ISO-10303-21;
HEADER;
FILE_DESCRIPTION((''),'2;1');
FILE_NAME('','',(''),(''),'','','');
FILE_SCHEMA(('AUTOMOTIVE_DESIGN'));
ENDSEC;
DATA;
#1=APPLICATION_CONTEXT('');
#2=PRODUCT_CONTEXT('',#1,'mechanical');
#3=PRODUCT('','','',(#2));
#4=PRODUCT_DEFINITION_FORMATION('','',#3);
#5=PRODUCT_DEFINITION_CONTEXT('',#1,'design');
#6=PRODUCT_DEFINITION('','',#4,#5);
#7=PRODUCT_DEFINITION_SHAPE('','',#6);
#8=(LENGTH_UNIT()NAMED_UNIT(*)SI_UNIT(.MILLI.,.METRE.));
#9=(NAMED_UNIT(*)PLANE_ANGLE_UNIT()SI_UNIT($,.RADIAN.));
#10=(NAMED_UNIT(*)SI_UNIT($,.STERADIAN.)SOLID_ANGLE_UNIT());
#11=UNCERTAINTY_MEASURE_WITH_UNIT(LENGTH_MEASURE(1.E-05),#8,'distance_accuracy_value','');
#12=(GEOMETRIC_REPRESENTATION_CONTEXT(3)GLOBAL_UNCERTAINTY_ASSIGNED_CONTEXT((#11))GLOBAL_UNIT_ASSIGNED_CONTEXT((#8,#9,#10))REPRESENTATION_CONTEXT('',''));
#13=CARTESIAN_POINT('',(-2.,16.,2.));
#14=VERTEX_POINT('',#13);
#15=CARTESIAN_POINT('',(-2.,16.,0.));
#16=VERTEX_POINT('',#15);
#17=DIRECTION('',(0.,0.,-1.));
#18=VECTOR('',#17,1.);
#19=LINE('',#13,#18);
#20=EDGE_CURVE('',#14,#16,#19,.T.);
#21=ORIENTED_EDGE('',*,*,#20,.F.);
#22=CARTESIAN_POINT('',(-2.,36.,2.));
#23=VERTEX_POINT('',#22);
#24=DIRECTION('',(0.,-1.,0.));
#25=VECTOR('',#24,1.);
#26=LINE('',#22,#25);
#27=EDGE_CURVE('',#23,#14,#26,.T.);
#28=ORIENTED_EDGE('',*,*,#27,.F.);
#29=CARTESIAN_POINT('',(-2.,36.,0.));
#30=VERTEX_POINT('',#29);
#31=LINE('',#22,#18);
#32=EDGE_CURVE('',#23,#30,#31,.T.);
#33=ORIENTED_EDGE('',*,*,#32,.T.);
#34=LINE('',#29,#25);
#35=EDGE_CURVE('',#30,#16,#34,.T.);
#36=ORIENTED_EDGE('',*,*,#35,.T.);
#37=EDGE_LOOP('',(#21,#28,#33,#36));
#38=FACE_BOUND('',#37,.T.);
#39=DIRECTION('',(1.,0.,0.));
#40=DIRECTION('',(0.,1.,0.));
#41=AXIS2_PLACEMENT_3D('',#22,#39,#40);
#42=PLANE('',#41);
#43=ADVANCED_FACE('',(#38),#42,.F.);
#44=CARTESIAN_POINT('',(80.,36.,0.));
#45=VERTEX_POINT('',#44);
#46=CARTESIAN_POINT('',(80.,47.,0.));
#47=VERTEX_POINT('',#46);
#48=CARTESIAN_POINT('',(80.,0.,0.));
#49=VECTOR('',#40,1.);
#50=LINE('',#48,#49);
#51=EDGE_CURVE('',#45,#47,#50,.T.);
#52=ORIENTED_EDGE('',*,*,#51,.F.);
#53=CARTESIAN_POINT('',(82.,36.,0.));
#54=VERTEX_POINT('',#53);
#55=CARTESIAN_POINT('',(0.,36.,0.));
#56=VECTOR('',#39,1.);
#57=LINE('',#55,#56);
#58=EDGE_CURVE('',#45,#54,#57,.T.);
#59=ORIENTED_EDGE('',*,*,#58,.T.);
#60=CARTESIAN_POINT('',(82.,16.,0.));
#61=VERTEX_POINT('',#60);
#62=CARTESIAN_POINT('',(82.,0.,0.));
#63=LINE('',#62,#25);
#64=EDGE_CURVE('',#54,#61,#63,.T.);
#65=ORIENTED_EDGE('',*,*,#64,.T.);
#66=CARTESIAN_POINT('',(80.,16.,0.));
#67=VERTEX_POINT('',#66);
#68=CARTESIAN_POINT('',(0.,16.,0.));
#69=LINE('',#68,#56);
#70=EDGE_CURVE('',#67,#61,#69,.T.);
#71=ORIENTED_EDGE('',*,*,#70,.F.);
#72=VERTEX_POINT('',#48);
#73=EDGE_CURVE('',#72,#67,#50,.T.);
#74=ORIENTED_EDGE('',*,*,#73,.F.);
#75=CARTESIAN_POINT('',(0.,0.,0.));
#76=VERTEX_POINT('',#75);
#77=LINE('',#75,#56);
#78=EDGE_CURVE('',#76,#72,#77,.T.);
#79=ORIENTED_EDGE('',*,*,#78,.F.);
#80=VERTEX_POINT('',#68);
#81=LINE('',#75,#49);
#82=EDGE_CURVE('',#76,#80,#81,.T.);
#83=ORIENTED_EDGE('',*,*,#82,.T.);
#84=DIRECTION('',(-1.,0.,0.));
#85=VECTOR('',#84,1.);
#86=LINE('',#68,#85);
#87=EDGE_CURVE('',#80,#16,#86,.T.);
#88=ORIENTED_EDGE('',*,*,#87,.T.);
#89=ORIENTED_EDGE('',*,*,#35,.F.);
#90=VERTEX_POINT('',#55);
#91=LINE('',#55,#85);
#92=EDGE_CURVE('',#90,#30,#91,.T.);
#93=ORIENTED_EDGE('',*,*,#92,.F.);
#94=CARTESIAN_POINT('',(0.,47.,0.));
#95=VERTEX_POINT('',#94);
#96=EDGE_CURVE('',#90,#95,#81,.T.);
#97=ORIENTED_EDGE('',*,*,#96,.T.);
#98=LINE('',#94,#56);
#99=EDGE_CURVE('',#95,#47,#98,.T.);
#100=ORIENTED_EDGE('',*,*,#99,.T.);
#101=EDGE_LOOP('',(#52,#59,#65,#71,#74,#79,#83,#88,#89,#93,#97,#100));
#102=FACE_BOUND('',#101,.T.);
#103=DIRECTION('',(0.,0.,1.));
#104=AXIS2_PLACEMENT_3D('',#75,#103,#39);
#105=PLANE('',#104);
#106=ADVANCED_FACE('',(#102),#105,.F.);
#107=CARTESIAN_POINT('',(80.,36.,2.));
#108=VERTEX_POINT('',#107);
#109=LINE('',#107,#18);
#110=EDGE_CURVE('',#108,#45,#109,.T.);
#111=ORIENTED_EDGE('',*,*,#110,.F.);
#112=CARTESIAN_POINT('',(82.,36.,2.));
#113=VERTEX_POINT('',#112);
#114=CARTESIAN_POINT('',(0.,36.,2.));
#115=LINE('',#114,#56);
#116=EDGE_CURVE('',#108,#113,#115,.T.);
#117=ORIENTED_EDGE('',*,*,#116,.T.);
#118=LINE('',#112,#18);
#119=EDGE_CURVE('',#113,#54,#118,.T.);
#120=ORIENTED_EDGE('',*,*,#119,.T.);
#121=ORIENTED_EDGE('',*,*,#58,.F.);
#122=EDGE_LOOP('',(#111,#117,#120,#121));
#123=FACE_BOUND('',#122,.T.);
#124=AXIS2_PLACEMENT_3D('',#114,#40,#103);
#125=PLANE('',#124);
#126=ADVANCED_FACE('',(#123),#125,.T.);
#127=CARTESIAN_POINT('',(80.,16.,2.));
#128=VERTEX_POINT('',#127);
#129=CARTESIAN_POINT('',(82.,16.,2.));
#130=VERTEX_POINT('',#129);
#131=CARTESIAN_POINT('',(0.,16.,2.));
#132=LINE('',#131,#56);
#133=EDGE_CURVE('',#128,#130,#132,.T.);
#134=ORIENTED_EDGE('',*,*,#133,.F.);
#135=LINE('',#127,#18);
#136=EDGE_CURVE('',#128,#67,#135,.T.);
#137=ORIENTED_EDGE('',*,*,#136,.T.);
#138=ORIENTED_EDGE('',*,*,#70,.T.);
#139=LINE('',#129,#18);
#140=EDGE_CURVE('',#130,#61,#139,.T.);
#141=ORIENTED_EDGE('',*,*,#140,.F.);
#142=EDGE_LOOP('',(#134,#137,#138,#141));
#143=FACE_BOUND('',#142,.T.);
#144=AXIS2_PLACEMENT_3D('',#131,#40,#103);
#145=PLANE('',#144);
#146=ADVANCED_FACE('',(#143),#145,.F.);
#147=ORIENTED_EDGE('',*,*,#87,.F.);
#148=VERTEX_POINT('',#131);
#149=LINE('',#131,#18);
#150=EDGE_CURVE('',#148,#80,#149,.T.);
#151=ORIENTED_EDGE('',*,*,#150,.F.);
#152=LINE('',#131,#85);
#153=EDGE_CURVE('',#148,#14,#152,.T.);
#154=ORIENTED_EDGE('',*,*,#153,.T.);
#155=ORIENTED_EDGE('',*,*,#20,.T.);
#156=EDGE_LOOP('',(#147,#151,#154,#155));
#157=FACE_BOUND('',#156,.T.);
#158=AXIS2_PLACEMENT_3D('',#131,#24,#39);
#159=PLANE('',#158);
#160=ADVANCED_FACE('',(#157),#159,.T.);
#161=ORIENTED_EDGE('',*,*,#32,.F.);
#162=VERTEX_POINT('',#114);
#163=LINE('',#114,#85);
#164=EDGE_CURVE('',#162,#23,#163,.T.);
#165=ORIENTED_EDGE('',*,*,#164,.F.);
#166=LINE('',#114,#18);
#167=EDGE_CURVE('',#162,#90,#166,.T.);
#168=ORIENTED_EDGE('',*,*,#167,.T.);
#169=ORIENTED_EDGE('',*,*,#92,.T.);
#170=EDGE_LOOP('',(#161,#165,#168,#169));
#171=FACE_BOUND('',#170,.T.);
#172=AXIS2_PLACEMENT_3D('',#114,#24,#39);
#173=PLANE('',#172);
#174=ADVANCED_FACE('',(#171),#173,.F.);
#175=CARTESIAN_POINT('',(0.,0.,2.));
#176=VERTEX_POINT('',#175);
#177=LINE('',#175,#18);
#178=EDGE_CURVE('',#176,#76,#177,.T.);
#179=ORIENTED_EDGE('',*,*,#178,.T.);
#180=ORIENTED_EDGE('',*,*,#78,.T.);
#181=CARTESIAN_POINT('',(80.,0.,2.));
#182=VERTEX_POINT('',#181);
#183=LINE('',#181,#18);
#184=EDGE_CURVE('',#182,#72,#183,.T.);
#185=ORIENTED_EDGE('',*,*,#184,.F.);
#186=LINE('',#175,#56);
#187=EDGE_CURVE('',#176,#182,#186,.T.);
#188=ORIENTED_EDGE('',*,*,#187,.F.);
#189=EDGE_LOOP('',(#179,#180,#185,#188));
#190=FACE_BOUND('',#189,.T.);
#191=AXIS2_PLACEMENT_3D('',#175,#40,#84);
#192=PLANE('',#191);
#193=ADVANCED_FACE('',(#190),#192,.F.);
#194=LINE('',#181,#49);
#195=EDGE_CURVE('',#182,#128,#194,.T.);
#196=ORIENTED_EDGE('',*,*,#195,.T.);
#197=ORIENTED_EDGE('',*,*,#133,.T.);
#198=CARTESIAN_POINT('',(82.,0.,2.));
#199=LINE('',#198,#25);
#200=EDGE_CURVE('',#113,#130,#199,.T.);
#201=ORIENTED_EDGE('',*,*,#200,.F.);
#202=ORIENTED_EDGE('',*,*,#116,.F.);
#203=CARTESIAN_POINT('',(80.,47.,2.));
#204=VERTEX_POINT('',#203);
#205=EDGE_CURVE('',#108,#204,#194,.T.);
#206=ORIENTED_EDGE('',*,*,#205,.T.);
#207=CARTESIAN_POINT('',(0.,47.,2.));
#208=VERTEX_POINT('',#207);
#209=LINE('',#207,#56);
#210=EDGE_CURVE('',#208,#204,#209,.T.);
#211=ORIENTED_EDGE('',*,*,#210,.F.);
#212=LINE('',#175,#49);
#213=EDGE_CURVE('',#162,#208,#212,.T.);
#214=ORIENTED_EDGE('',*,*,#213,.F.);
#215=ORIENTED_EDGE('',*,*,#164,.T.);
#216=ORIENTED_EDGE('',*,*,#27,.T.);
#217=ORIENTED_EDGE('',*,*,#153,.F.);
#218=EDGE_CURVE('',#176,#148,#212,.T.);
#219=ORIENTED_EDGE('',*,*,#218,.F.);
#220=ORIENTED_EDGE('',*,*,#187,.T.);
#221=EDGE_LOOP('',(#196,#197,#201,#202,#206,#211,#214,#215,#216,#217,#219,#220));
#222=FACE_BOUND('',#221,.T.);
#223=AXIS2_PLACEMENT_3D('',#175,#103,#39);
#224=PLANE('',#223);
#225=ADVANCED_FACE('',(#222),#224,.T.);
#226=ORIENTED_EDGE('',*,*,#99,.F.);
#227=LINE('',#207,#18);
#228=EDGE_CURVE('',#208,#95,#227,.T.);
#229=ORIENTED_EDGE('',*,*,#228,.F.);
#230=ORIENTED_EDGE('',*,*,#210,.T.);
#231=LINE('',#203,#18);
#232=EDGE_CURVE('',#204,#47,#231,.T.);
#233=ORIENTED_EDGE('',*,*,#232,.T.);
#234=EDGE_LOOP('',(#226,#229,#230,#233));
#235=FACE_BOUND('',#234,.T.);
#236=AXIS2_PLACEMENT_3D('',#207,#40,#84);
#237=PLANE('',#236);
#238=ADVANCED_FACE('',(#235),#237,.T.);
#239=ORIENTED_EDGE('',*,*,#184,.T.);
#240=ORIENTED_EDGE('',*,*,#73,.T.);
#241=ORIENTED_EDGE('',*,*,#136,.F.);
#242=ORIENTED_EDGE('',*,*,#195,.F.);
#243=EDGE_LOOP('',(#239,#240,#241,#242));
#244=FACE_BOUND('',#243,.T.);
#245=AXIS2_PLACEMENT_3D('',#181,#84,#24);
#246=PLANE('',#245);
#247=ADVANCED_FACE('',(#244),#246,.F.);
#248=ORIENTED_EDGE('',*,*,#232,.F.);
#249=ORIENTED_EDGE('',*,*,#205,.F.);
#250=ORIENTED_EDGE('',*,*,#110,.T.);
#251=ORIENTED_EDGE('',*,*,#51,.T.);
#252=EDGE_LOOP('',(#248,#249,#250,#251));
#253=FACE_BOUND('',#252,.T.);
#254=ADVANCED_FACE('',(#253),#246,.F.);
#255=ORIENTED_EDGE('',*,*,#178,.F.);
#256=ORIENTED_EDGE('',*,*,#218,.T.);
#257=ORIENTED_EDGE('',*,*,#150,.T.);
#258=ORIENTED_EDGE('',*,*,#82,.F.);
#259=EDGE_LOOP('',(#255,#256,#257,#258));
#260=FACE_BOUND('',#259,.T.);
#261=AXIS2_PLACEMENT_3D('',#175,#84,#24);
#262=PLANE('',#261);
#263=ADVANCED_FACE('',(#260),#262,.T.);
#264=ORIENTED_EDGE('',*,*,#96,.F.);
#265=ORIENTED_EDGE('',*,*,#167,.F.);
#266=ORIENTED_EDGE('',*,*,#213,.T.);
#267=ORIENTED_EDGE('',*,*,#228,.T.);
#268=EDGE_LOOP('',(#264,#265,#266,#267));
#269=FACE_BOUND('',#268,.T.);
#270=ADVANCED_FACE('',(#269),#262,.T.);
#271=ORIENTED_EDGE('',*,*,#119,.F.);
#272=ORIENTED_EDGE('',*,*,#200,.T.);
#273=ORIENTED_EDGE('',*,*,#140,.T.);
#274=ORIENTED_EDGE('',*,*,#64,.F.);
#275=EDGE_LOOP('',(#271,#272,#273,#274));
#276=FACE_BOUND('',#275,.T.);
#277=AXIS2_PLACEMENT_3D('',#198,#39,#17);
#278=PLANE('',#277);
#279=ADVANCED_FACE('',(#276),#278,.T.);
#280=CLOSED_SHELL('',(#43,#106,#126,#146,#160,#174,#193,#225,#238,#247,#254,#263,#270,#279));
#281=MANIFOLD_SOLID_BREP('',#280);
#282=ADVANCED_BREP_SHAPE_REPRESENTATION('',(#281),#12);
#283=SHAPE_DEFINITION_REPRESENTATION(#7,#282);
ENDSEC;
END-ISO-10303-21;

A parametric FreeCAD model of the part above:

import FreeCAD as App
import Part
import Sketcher
Q = App.Units.Quantity


def add_polygon(sketch, points):
    """Adds a closed chain of lines whose ends are joined by coincident constraints."""
    first, n = sketch.GeometryCount, len(points)
    for a, b in zip(points, points[1:] + points[:1]):
        sketch.addGeometry(Part.LineSegment(App.Vector(*a, 0), App.Vector(*b, 0)), False)
    for i in range(n):
        sketch.addConstraint(Sketcher.Constraint("Coincident", first + i, 2, first + (i + 1) % n, 1))

doc = App.newDocument("Part")
body = doc.addObject("PartDesign::Body", "Body")

# Sketch on XY plane
sketch1 = body.newObject("Sketcher::SketchObject", "Sketch")
sketch1.AttachmentSupport = (doc.getObject("XY_Plane"), [""])
sketch1.MapMode = "FlatFace"
add_polygon(sketch1, [(80, 16), (82, 16), (82, 36), (80, 36), (80, 47), (0, 47), (0, 36), (-2, 36), (-2, 16), (0, 16), (0, 0), (80, 0)])  # lines 0-11
sketch1.addConstraint([
    Sketcher.Constraint("Horizontal", 0),
    Sketcher.Constraint("Vertical", 1),
    Sketcher.Constraint("Horizontal", 2),
    Sketcher.Constraint("Vertical", 3),
    Sketcher.Constraint("Horizontal", 4),
    Sketcher.Constraint("Vertical", 5),
    Sketcher.Constraint("Horizontal", 6),
    Sketcher.Constraint("Vertical", 7),
    Sketcher.Constraint("Horizontal", 8),
    Sketcher.Constraint("Vertical", 9),
    Sketcher.Constraint("Horizontal", 10),
    Sketcher.Constraint("Vertical", 11),
    Sketcher.Constraint("Coincident", 9, 2, -1, 1),
    Sketcher.Constraint("PointOnObject", 4, 2, -2),
    Sketcher.Constraint("Horizontal", 2, 2, 5, 2),
    Sketcher.Constraint("Horizontal", 0, 2, 7, 2),
    Sketcher.Constraint("Vertical", 3, 2, 10, 2),
    Sketcher.Constraint("Equal", 2, 6),
    Sketcher.Constraint("DistanceX", 0, 1, 0, 2, Q("2 mm")),
    Sketcher.Constraint("DistanceX", 4, 2, 4, 1, Q("80 mm")),
    Sketcher.Constraint("DistanceY", 1, 1, 1, 2, Q("20 mm")),
    Sketcher.Constraint("DistanceY", 3, 1, 3, 2, Q("11 mm")),
    Sketcher.Constraint("DistanceY", 9, 2, 9, 1, Q("16 mm")),
])
pad1 = body.newObject("PartDesign::Pad", "Pad")
pad1.Profile = sketch1
pad1.Length = 2

doc.recompute()
